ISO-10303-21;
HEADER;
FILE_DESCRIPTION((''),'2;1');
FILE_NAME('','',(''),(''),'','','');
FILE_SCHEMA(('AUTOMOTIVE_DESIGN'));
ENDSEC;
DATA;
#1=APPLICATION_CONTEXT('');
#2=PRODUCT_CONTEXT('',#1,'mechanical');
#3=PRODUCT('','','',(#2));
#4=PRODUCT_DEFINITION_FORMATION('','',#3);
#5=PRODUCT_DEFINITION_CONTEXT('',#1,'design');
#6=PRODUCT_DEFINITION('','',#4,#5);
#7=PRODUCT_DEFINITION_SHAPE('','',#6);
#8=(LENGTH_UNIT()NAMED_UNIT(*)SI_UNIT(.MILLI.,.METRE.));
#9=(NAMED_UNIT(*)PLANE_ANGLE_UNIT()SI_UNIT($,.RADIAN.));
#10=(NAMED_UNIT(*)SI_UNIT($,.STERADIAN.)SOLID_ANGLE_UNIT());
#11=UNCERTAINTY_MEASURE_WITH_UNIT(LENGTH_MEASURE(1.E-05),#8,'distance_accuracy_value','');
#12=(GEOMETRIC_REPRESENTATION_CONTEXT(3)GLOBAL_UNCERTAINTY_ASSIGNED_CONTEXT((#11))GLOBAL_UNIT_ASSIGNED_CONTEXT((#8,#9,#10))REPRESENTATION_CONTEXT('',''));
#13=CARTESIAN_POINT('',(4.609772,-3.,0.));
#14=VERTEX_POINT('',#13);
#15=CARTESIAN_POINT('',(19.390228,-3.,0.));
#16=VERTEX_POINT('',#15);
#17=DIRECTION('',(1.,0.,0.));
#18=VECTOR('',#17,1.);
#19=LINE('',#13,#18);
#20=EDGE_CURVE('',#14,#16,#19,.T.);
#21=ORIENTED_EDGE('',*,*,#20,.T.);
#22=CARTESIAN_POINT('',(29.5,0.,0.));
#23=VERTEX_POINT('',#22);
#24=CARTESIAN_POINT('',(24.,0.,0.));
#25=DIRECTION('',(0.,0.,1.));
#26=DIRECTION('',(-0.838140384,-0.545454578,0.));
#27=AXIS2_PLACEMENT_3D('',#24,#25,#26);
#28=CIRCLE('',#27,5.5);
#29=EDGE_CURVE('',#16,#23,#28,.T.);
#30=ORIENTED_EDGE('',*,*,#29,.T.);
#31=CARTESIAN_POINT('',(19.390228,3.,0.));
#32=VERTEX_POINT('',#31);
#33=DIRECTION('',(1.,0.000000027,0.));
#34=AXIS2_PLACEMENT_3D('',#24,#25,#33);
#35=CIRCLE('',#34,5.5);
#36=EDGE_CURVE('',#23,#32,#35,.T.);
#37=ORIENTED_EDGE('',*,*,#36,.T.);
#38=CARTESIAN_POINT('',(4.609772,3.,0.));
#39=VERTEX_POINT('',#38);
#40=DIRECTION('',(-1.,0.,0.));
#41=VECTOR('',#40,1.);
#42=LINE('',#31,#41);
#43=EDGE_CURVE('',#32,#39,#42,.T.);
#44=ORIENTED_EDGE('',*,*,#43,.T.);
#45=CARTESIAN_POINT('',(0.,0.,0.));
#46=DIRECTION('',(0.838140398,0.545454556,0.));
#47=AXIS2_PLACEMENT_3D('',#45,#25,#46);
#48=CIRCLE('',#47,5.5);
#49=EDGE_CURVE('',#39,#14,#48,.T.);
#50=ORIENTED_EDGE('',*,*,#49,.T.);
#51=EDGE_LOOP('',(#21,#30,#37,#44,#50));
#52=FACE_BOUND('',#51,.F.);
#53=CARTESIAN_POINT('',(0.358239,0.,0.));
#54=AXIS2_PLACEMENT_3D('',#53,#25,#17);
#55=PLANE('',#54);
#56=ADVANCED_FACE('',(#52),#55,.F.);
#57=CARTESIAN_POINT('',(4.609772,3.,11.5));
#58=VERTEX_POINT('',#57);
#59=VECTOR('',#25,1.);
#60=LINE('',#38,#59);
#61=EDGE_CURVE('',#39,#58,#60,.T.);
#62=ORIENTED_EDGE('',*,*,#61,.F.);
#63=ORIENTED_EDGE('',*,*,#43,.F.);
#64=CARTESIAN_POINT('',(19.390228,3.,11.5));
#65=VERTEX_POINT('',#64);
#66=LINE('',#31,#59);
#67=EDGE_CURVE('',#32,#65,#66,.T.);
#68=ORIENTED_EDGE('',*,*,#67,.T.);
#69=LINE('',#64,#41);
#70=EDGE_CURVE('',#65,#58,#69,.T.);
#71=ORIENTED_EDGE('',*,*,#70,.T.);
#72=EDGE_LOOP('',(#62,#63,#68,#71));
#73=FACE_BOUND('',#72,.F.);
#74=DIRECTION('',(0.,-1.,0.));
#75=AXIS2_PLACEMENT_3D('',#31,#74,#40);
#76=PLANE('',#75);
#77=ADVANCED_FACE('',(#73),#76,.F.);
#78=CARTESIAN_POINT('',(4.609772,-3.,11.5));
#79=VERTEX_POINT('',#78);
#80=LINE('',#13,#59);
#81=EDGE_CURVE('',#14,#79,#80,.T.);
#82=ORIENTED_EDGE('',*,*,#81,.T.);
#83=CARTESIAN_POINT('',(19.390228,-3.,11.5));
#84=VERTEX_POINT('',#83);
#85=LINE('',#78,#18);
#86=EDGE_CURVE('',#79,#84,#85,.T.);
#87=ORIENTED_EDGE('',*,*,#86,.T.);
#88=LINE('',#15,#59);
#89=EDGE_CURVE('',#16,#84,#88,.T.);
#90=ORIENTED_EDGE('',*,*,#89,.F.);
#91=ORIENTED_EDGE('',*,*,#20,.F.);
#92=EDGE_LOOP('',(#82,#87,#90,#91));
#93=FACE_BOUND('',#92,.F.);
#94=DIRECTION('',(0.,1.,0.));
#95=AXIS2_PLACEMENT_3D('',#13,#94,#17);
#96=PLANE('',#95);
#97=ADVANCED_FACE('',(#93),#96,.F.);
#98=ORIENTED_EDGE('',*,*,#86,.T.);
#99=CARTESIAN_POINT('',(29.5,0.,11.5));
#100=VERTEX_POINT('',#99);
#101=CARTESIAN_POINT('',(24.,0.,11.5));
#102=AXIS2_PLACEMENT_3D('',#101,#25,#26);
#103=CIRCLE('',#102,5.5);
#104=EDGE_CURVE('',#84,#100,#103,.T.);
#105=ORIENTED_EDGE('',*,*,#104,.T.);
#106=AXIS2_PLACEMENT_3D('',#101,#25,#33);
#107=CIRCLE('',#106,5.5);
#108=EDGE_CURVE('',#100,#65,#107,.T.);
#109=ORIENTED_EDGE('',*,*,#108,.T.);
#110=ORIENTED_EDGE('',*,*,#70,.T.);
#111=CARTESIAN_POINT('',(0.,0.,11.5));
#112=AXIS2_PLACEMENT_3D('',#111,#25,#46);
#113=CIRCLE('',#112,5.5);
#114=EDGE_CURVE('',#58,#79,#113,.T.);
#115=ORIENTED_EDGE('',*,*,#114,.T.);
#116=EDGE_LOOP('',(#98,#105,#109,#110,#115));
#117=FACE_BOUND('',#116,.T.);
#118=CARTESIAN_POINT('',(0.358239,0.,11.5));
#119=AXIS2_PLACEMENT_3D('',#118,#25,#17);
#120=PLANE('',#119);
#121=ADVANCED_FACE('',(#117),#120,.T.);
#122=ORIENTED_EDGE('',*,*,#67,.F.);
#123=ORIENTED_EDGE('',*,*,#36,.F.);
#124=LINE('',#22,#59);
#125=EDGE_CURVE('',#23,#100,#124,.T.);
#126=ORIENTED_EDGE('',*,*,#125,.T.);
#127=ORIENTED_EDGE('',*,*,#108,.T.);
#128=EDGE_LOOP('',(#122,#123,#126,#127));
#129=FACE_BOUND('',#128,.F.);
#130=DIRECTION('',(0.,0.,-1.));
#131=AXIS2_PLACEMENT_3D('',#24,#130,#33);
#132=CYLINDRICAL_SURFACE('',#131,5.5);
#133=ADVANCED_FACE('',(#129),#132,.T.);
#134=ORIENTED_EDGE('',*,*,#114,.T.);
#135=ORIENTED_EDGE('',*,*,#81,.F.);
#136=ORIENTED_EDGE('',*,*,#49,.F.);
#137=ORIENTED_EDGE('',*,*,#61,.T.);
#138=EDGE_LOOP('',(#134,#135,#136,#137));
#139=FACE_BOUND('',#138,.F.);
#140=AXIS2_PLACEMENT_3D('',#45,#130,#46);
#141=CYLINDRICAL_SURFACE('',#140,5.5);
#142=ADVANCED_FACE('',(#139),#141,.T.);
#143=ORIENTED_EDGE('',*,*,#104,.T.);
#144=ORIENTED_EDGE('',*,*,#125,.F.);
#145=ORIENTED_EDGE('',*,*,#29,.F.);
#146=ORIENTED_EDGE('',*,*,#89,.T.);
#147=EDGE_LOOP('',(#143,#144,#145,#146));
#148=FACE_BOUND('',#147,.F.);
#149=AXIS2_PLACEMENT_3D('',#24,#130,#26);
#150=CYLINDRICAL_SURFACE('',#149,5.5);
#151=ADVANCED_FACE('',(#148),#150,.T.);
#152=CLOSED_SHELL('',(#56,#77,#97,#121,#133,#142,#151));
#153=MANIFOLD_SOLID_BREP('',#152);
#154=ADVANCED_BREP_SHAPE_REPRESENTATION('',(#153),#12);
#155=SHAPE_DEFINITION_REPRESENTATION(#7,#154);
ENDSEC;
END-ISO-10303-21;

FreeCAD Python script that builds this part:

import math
import FreeCAD as App
import Part
import Sketcher

doc = App.newDocument("Part")
params = doc.addObject("Spreadsheet::Sheet", "Params")
for row, (alias, value) in enumerate([
    ("sketch1_radius", "5.5 mm"),
    ("pad1_length", "11.5 mm"),
], start=1):
    params.set(f"A{row}", alias)
    params.set(f"B{row}", "=" + value)
    params.setAlias(f"B{row}", alias)

body = doc.addObject("PartDesign::Body", "Body")

# Sketch on XY plane
sketch1 = body.newObject("Sketcher::SketchObject", "Sketch")
sketch1.AttachmentSupport = (doc.getObject("XY_Plane"), [""])
sketch1.MapMode = "FlatFace"
sketch1.addGeometry([
    Part.ArcOfCircle(Part.Circle(App.Vector(0, 0, 0), App.Vector(0, 0, 1), 5), math.radians(33), math.radians(327)),  # 0
    Part.LineSegment(App.Vector(5, -3, 0), App.Vector(19, -3, 0)),  # 1
    Part.ArcOfCircle(Part.Circle(App.Vector(24, 0, 0), App.Vector(0, 0, 1), 5), math.radians(-147), math.radians(0)),  # 2
    Part.ArcOfCircle(Part.Circle(App.Vector(24, 0, 0), App.Vector(0, 0, 1), 5), math.radians(0), math.radians(147)),  # 3
    Part.LineSegment(App.Vector(19, 3, 0), App.Vector(5, 3, 0)),  # 4
], False)
sketch1.addConstraint([
    Sketcher.Constraint("Coincident", 0, 2, 1, 1),
    Sketcher.Constraint("Coincident", 1, 2, 2, 1),
    Sketcher.Constraint("Tangent", 2, 2, 3, 1),
    Sketcher.Constraint("Coincident", 3, 2, 4, 1),
    Sketcher.Constraint("Coincident", 4, 2, 0, 1),
    Sketcher.Constraint("Horizontal", 1),
    Sketcher.Constraint("Horizontal", 4),
    Sketcher.Constraint("Coincident", 0, 3, -1, 1),
    Sketcher.Constraint("Equal", 0, 2),
    Sketcher.Constraint("Equal", 2, 3),
    Sketcher.Constraint("Symmetric", 1, 2, 3, 2, -1),
    Sketcher.Constraint("PointOnObject", 2, 2, -1),
    Sketcher.Constraint("Radius", 0, 5.5),
    Sketcher.Constraint("DistanceX", -1, 1, 2, 3, 24.0),
    Sketcher.Constraint("DistanceY", 0, 2, -1, 1, 3.0),
])
sketch1.setExpression("Constraints[12]", "Params.sketch1_radius")
pad1 = body.newObject("PartDesign::Pad", "Pad")
pad1.Profile = sketch1
pad1.setExpression("Length", "Params.pad1_length")

doc.recompute()
